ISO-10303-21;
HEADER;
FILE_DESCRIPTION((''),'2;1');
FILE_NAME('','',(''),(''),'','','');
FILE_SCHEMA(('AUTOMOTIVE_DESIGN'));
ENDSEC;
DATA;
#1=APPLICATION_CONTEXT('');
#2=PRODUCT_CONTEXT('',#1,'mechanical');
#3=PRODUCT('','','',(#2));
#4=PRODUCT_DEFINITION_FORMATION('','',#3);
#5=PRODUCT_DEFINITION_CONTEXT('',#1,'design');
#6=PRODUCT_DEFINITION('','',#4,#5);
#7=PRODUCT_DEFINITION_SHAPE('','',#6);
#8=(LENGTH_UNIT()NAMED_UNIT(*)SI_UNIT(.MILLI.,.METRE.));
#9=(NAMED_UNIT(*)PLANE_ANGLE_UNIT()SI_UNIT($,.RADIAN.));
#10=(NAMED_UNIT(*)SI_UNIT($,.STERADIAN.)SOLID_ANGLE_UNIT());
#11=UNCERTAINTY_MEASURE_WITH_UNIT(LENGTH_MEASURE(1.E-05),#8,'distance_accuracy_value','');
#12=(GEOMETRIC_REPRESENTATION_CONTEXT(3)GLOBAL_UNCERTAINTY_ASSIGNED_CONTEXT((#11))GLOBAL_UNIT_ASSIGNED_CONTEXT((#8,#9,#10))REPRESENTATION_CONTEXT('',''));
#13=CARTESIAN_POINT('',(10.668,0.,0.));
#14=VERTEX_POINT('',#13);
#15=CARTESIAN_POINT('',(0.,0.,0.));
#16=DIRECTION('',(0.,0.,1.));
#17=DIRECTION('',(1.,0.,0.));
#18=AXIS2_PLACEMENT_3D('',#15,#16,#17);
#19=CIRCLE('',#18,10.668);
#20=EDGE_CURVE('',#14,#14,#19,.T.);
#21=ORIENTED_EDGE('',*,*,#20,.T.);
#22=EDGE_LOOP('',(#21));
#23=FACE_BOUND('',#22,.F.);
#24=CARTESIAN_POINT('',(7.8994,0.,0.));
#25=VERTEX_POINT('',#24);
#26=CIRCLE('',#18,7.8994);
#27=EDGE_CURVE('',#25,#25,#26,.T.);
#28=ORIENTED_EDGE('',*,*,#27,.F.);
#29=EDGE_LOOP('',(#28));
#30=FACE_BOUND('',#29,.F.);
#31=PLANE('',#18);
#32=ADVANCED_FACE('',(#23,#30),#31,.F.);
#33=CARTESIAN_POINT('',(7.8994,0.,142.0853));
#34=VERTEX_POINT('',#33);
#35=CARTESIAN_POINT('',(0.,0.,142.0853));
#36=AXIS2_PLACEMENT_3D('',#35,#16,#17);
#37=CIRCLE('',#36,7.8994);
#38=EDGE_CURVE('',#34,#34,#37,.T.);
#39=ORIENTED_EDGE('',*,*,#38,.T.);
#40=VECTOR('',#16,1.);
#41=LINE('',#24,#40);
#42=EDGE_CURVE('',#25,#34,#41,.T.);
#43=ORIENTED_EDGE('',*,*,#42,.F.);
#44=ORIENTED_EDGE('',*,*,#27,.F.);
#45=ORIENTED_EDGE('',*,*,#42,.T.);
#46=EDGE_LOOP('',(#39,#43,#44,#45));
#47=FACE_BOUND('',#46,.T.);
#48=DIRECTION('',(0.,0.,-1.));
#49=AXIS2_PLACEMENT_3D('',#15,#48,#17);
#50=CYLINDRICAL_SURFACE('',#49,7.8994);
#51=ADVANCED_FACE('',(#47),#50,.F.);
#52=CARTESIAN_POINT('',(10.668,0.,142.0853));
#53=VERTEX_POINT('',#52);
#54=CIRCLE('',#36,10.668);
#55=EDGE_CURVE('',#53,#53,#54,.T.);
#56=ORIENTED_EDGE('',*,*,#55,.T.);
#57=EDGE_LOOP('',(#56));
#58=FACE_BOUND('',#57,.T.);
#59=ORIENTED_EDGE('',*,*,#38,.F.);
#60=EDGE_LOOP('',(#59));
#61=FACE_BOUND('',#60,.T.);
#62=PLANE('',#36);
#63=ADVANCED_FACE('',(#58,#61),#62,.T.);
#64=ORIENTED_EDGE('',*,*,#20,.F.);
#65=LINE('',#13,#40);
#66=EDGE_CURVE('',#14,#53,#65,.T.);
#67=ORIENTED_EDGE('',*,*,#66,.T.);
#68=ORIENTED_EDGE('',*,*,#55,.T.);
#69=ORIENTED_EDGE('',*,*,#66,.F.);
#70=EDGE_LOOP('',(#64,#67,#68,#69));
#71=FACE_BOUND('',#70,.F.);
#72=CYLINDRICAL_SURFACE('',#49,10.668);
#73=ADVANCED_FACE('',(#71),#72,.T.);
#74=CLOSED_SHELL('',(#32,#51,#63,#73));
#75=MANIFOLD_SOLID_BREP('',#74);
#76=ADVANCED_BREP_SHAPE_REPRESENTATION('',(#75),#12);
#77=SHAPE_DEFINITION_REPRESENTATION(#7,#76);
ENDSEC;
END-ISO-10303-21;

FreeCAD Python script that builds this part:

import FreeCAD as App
import Part
import Sketcher
Q = App.Units.Quantity

doc = App.newDocument("Part")
params = doc.addObject("Spreadsheet::Sheet", "Params")
for row, (alias, value) in enumerate([
    ("sketch1_diameter", "0.84 in"),
    ("sketch1_diameter2", "0.622 in"),
    ("pad1_length", "5.5939094 in"),
], start=1):
    params.set(f"A{row}", alias)
    params.set(f"B{row}", "=" + value)
    params.setAlias(f"B{row}", alias)

body = doc.addObject("PartDesign::Body", "Body")

# Sketch on XY plane
sketch1 = body.newObject("Sketcher::SketchObject", "Sketch")
sketch1.AttachmentSupport = (doc.getObject("XY_Plane"), [""])
sketch1.MapMode = "FlatFace"
sketch1.addGeometry(Part.Circle(App.Vector(0, 0, 0), App.Vector(0, 0, 1), 11), False)
sketch1.addGeometry(Part.Circle(App.Vector(0, 0, 0), App.Vector(0, 0, 1), 8), False)
sketch1.addConstraint(Sketcher.Constraint("Coincident", 0, 3, -1, 1))
sketch1.addConstraint(Sketcher.Constraint("Coincident", 1, 3, -1, 1))
sketch1.addConstraint(Sketcher.Constraint("Diameter", 0, Q("0.84 in")))
sketch1.addConstraint(Sketcher.Constraint("Diameter", 1, Q("0.622 in")))
sketch1.setExpression("Constraints[2]", "Params.sketch1_diameter")
sketch1.setExpression("Constraints[3]", "Params.sketch1_diameter2")
pad1 = body.newObject("PartDesign::Pad", "Pad")
pad1.Profile = sketch1
pad1.setExpression("Length", "Params.pad1_length")

doc.recompute()
